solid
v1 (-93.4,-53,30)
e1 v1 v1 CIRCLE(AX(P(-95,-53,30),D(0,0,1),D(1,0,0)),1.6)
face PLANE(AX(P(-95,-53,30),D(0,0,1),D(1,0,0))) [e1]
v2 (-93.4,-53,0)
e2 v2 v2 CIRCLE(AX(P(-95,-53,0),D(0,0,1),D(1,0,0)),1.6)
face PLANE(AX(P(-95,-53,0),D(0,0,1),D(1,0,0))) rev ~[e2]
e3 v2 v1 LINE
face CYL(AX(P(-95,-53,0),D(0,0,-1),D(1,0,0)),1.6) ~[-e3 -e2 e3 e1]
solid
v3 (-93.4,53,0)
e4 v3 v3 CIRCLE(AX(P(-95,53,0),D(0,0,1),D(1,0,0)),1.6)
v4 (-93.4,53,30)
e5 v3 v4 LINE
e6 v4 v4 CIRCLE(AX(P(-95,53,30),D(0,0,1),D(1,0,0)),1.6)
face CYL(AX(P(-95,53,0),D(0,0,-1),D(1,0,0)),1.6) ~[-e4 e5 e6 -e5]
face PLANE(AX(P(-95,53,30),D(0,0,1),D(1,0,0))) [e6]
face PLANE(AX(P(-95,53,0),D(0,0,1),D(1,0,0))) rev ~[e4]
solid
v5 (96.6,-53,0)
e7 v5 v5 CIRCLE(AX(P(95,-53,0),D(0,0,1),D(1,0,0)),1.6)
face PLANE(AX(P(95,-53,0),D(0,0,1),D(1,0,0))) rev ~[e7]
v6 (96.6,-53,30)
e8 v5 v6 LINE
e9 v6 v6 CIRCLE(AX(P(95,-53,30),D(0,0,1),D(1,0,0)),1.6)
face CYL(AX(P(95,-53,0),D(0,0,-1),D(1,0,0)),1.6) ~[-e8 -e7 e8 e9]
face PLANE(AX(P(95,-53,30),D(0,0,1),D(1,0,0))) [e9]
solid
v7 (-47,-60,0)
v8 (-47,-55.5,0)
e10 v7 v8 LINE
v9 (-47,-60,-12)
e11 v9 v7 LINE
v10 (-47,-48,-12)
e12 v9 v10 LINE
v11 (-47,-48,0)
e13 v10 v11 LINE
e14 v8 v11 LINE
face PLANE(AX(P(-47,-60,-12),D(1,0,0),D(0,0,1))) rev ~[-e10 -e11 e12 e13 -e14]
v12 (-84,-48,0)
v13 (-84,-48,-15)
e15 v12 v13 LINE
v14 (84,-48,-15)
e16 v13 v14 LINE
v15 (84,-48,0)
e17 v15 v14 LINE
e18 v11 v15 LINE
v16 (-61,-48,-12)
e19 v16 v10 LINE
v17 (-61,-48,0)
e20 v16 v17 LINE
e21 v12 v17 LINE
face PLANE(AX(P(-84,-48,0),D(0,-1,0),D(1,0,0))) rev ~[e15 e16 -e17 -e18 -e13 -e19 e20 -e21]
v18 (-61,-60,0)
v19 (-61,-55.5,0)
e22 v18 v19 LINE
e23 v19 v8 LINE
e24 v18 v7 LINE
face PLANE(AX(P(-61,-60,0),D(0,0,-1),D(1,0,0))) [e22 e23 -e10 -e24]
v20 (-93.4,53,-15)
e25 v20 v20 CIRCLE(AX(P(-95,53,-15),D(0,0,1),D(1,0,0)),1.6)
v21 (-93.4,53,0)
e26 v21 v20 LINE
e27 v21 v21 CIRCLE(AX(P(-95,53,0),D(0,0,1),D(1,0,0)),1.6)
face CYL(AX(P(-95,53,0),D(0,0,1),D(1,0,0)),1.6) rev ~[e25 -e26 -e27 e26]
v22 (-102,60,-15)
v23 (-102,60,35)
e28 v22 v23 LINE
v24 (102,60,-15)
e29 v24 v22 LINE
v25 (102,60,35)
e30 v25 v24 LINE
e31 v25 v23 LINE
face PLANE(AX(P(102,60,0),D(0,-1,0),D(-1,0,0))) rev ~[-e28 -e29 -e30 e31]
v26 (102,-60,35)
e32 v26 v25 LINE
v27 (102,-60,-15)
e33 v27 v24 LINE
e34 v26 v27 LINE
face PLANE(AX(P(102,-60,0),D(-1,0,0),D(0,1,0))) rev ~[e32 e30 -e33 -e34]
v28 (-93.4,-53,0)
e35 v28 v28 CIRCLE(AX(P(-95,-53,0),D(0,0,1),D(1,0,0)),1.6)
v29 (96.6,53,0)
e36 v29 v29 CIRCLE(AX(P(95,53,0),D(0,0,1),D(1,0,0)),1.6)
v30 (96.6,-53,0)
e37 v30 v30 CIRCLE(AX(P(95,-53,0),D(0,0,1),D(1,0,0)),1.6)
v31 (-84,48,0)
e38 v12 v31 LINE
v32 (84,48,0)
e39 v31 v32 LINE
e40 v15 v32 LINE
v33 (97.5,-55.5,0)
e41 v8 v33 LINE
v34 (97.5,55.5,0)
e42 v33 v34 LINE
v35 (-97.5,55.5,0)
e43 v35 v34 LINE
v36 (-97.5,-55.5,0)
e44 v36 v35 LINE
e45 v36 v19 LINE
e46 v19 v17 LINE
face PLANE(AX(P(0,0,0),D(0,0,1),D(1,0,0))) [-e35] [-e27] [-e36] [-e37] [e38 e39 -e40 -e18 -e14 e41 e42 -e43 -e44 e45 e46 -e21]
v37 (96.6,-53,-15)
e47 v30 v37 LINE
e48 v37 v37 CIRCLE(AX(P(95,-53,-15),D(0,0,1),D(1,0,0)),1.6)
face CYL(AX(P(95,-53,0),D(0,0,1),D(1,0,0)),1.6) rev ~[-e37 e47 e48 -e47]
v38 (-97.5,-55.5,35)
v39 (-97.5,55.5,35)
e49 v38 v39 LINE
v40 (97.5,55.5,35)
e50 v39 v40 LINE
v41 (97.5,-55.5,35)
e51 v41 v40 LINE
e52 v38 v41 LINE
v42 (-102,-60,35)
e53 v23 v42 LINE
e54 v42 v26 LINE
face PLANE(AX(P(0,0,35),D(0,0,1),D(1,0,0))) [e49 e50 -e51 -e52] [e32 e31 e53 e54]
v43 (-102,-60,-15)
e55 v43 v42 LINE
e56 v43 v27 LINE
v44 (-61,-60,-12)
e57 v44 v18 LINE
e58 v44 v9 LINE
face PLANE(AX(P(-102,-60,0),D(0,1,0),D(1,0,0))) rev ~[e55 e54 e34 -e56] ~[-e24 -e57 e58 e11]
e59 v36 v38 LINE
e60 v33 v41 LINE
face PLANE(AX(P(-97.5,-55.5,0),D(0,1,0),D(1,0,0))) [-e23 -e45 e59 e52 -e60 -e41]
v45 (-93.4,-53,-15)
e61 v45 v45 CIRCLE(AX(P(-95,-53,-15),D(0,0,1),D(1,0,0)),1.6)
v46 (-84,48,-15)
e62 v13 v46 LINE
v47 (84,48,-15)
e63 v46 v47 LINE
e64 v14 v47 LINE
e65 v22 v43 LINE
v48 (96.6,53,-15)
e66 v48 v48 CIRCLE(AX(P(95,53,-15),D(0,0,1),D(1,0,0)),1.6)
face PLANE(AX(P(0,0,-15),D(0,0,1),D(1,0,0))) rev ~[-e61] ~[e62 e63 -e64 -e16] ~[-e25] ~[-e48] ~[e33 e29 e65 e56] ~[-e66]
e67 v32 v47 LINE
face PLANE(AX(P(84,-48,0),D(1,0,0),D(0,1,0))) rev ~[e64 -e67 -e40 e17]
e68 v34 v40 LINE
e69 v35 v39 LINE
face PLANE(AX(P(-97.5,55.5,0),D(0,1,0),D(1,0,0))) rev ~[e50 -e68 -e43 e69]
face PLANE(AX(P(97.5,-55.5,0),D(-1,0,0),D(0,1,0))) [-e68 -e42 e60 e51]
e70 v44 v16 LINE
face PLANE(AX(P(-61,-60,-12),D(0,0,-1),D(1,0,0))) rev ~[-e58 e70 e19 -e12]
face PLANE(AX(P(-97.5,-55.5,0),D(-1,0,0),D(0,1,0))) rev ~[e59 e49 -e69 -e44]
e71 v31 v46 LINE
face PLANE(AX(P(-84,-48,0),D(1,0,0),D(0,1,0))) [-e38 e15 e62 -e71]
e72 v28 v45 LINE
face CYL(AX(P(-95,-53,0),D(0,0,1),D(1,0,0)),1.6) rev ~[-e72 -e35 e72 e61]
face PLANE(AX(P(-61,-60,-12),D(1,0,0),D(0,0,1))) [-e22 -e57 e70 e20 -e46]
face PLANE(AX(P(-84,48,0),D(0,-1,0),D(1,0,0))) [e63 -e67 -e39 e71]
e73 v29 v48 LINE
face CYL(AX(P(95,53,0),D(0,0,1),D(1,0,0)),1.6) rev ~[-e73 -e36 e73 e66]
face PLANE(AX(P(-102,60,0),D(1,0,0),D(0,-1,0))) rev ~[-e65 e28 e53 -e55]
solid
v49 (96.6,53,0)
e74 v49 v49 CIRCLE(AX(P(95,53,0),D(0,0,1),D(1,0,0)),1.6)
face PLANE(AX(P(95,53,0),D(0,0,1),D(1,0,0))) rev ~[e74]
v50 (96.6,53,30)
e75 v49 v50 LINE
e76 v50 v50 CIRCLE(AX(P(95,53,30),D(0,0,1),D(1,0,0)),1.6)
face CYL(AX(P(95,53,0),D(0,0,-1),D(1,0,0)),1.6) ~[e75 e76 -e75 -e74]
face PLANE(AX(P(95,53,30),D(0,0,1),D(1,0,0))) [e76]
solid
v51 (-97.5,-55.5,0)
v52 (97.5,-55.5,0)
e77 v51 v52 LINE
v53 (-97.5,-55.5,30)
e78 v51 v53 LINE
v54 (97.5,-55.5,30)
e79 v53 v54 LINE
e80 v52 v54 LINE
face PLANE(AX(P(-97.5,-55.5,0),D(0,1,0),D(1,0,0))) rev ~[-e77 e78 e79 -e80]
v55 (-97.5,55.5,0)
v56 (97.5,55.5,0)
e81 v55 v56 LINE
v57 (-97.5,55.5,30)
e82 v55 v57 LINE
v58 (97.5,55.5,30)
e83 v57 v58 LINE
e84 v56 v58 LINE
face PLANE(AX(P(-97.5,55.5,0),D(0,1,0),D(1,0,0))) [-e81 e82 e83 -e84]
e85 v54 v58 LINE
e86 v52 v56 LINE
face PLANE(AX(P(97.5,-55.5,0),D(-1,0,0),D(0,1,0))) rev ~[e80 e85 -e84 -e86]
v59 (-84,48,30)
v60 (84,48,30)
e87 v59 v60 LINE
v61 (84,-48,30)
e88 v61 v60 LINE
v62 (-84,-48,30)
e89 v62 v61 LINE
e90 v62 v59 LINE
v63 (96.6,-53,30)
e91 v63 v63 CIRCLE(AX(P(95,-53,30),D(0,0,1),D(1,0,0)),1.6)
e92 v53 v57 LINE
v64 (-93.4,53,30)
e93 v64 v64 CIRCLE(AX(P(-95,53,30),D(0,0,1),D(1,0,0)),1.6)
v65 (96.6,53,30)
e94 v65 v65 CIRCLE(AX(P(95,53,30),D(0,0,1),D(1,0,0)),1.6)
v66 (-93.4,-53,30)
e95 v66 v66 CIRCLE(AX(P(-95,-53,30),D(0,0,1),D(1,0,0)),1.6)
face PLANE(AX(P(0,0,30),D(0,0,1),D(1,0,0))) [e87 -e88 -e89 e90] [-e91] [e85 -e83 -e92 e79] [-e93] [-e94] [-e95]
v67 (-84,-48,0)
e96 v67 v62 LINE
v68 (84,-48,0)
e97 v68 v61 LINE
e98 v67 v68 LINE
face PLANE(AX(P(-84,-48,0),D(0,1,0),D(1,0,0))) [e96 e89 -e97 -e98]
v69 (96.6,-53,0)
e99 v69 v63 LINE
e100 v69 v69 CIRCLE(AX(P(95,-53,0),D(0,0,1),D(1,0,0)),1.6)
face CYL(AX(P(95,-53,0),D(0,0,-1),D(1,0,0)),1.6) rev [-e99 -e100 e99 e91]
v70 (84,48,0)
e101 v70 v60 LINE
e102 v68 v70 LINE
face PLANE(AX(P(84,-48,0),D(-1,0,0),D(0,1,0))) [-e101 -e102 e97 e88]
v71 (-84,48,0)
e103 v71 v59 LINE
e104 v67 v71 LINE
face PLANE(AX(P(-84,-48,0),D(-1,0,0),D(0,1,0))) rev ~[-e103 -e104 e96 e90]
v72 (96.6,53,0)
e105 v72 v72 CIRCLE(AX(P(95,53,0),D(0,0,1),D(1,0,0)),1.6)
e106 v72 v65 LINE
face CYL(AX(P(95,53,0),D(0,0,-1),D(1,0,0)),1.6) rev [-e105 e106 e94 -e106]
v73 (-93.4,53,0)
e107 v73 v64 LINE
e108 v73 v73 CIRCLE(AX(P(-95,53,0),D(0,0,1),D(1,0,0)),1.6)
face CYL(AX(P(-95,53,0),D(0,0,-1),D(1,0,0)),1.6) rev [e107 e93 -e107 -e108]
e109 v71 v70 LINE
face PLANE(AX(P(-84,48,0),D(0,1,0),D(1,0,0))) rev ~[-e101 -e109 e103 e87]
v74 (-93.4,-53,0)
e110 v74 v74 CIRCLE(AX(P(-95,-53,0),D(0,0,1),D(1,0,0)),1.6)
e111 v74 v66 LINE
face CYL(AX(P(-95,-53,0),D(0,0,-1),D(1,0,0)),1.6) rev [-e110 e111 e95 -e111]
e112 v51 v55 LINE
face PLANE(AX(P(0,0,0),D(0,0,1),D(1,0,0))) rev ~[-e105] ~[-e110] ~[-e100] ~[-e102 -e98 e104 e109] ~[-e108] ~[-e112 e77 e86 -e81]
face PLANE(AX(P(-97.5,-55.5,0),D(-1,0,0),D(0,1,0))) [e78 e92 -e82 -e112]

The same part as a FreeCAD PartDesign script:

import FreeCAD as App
import Part
import Sketcher

V = App.Vector

doc = App.newDocument("Part")
body = doc.addObject("PartDesign::Body", "Body")

sketch1 = doc.addObject("Sketcher::SketchObject", "Sketch")
body.addObject(sketch1)
sketch1.AttachmentSupport = (doc.XY_Plane, [""])
sketch1.MapMode = "FlatFace"
sketch1.addGeometry([
    Part.LineSegment(V(102, 60, 0), V(-102, 60, 0)),
    Part.LineSegment(V(-102, 60, 0), V(-102, -60, 0)),
    Part.LineSegment(V(-102, -60, 0), V(102, -60, 0)),
    Part.LineSegment(V(102, -60, 0), V(102, 60, 0)),
    Part.LineSegment(V(97.5, -55.5, 0), V(-97.5, -55.5, 0)),
    Part.LineSegment(V(-97.5, -55.5, 0), V(-97.5, 55.5, 0)),
    Part.LineSegment(V(-97.5, 55.5, 0), V(97.5, 55.5, 0)),
    Part.LineSegment(V(97.5, 55.5, 0), V(97.5, -55.5, 0)),
], False)
sketch1.addConstraint([
    Sketcher.Constraint("Coincident", 0, 2, 1, 1),
    Sketcher.Constraint("Coincident", 1, 2, 2, 1),
    Sketcher.Constraint("Coincident", 2, 2, 3, 1),
    Sketcher.Constraint("Coincident", 3, 2, 0, 1),
    Sketcher.Constraint("Coincident", 4, 2, 5, 1),
    Sketcher.Constraint("Coincident", 5, 2, 6, 1),
    Sketcher.Constraint("Coincident", 6, 2, 7, 1),
    Sketcher.Constraint("Coincident", 7, 2, 4, 1),
    Sketcher.Constraint("Horizontal", 0),
    Sketcher.Constraint("Vertical", 1),
    Sketcher.Constraint("Horizontal", 2),
    Sketcher.Constraint("Vertical", 3),
    Sketcher.Constraint("Horizontal", 4),
    Sketcher.Constraint("Vertical", 5),
    Sketcher.Constraint("Horizontal", 6),
    Sketcher.Constraint("Vertical", 7),
    Sketcher.Constraint("Symmetric", 0, 2, 2, 2, -1, 1),
    Sketcher.Constraint("Symmetric", 4, 2, 6, 2, -1, 1),
    Sketcher.Constraint("DistanceX", 0, 2, 0, 1, 204.0),
    Sketcher.Constraint("DistanceX", 4, 2, 4, 1, 195.0),
    Sketcher.Constraint("DistanceY", 1, 2, 1, 1, 120.0),
    Sketcher.Constraint("DistanceY", 5, 1, 5, 2, 111.0),
])
pad1 = doc.addObject("PartDesign::Pad", "Pad")
body.addObject(pad1)
pad1.Profile = sketch1
pad1.Length = 15
pad1.Reversed = True

sketch2 = doc.addObject("Sketcher::SketchObject", "Sketch001")
body.addObject(sketch2)
sketch2.AttachmentSupport = (doc.XY_Plane, [""])
sketch2.MapMode = "FlatFace"
sketch2.addGeometry([
    Part.LineSegment(V(-97.5, 55.5, 0), V(-97.5, -55.5, 0)),
    Part.LineSegment(V(-97.5, -55.5, 0), V(97.5, -55.5, 0)),
    Part.LineSegment(V(97.5, -55.5, 0), V(97.5, 55.5, 0)),
    Part.LineSegment(V(97.5, 55.5, 0), V(-97.5, 55.5, 0)),
    Part.Circle(V(-95, -53, 0), V(0, 0, 1), 1.6),
    Part.LineSegment(V(84, -48, 0), V(-84, -48, 0)),
    Part.LineSegment(V(-84, -48, 0), V(-84, 48, 0)),
    Part.LineSegment(V(-84, 48, 0), V(84, 48, 0)),
    Part.LineSegment(V(84, 48, 0), V(84, -48, 0)),
    Part.Circle(V(95, -53, 0), V(0, 0, 1), 1.6),
    Part.Circle(V(-95, 53, 0), V(0, 0, 1), 1.6),
    Part.Circle(V(95, 53, 0), V(0, 0, 1), 1.6),
], False)
sketch2.addConstraint([
    Sketcher.Constraint("Coincident", 0, 2, 1, 1),
    Sketcher.Constraint("Coincident", 1, 2, 2, 1),
    Sketcher.Constraint("Coincident", 2, 2, 3, 1),
    Sketcher.Constraint("Coincident", 3, 2, 0, 1),
    Sketcher.Constraint("Coincident", 5, 2, 6, 1),
    Sketcher.Constraint("Coincident", 6, 2, 7, 1),
    Sketcher.Constraint("Coincident", 7, 2, 8, 1),
    Sketcher.Constraint("Coincident", 8, 2, 5, 1),
    Sketcher.Constraint("Vertical", 0),
    Sketcher.Constraint("Horizontal", 1),
    Sketcher.Constraint("Vertical", 2),
    Sketcher.Constraint("Horizontal", 3),
    Sketcher.Constraint("Horizontal", 5),
    Sketcher.Constraint("Vertical", 6),
    Sketcher.Constraint("Horizontal", 7),
    Sketcher.Constraint("Vertical", 8),
    Sketcher.Constraint("Equal", 4, 9),
    Sketcher.Constraint("Equal", 9, 10),
    Sketcher.Constraint("Equal", 10, 11),
    Sketcher.Constraint("Symmetric", 9, 3, 10, 3, -1, 1),
    Sketcher.Constraint("Symmetric", 4, 3, 11, 3, -1, 1),
    Sketcher.Constraint("Symmetric", 0, 2, 2, 2, -1, 1),
    Sketcher.Constraint("Symmetric", 5, 2, 7, 2, -1, 1),
    Sketcher.Constraint("Symmetric", 4, 3, 9, 3, -2),
    Sketcher.Constraint("Diameter", 4, 3.2),
    Sketcher.Constraint("DistanceX", 1, 1, 1, 2, 195.0),
    Sketcher.Constraint("DistanceX", 5, 2, 5, 1, 168.0),
    Sketcher.Constraint("DistanceY", 0, 2, 0, 1, 111.0),
    Sketcher.Constraint("DistanceY", 6, 1, 6, 2, 96.0),
    Sketcher.Constraint("DistanceX", 4, 3, -1, 1, 95.0),
    Sketcher.Constraint("DistanceY", 4, 3, -1, 1, 53.0),
])
pad2 = doc.addObject("PartDesign::Pad", "Pad001")
body.addObject(pad2)
pad2.Profile = sketch2
pad2.Length = 15
pad2.Reversed = True

sketch3 = doc.addObject("Sketcher::SketchObject", "Sketch002")
body.addObject(sketch3)
sketch3.AttachmentSupport = (doc.XY_Plane, [""])
sketch3.MapMode = "FlatFace"
sketch3.addGeometry([
    Part.LineSegment(V(102, 60, 0), V(-102, 60, 0)),
    Part.LineSegment(V(-102, 60, 0), V(-102, -60, 0)),
    Part.LineSegment(V(-102, -60, 0), V(102, -60, 0)),
    Part.LineSegment(V(102, -60, 0), V(102, 60, 0)),
    Part.LineSegment(V(97.5, -55.5, 0), V(-97.5, -55.5, 0)),
    Part.LineSegment(V(-97.5, -55.5, 0), V(-97.5, 55.5, 0)),
    Part.LineSegment(V(-97.5, 55.5, 0), V(97.5, 55.5, 0)),
    Part.LineSegment(V(97.5, 55.5, 0), V(97.5, -55.5, 0)),
], False)
sketch3.addConstraint([
    Sketcher.Constraint("Coincident", 0, 2, 1, 1),
    Sketcher.Constraint("Coincident", 1, 2, 2, 1),
    Sketcher.Constraint("Coincident", 2, 2, 3, 1),
    Sketcher.Constraint("Coincident", 3, 2, 0, 1),
    Sketcher.Constraint("Coincident", 4, 2, 5, 1),
    Sketcher.Constraint("Coincident", 5, 2, 6, 1),
    Sketcher.Constraint("Coincident", 6, 2, 7, 1),
    Sketcher.Constraint("Coincident", 7, 2, 4, 1),
    Sketcher.Constraint("Horizontal", 0),
    Sketcher.Constraint("Vertical", 1),
    Sketcher.Constraint("Horizontal", 2),
    Sketcher.Constraint("Vertical", 3),
    Sketcher.Constraint("Horizontal", 4),
    Sketcher.Constraint("Vertical", 5),
    Sketcher.Constraint("Horizontal", 6),
    Sketcher.Constraint("Vertical", 7),
    Sketcher.Constraint("Symmetric", 0, 2, 2, 2, -1, 1),
    Sketcher.Constraint("Symmetric", 4, 2, 6, 2, -1, 1),
    Sketcher.Constraint("DistanceX", 0, 2, 0, 1, 204.0),
    Sketcher.Constraint("DistanceX", 4, 2, 4, 1, 195.0),
    Sketcher.Constraint("DistanceY", 1, 2, 1, 1, 120.0),
    Sketcher.Constraint("DistanceY", 5, 1, 5, 2, 111.0),
])
pad3 = doc.addObject("PartDesign::Pad", "Pad002")
body.addObject(pad3)
pad3.Profile = sketch3
pad3.Length = 35

sketch4 = doc.addObject("Sketcher::SketchObject", "Sketch003")
body.addObject(sketch4)
sketch4.AttachmentSupport = (doc.XZ_Plane, [""])
sketch4.MapMode = "FlatFace"
sketch4.AttachmentOffset = App.Placement(V(0, 0, 60), App.Rotation())
sketch4.addGeometry([
    Part.LineSegment(V(-61, 0, 0), V(-61, -12, 0)),
    Part.LineSegment(V(-61, -12, 0), V(-47, -12, 0)),
    Part.LineSegment(V(-47, -12, 0), V(-47, 0, 0)),
    Part.LineSegment(V(-47, 0, 0), V(-61, 0, 0)),
], False)
sketch4.addConstraint([
    Sketcher.Constraint("Coincident", 0, 2, 1, 1),
    Sketcher.Constraint("Coincident", 1, 2, 2, 1),
    Sketcher.Constraint("Coincident", 2, 2, 3, 1),
    Sketcher.Constraint("Coincident", 3, 2, 0, 1),
    Sketcher.Constraint("Vertical", 0),
    Sketcher.Constraint("Horizontal", 1),
    Sketcher.Constraint("Vertical", 2),
    Sketcher.Constraint("Horizontal", 3),
    Sketcher.Constraint("PointOnObject", 2, 2, -1),
    Sketcher.Constraint("DistanceX", 1, 1, 1, 2, 14.0),
    Sketcher.Constraint("DistanceY", 0, 2, 0, 1, 12.0),
    Sketcher.Constraint("DistanceX", 0, 2, -1, 1, 61.0),
])
pocket1 = doc.addObject("PartDesign::Pocket", "Pocket")
body.addObject(pocket1)
pocket1.Profile = sketch4
pocket1.Length = 25
body2 = doc.addObject("PartDesign::Body", "Body001")

sketch5 = doc.addObject("Sketcher::SketchObject", "Sketch004")
body2.addObject(sketch5)
sketch5.AttachmentSupport = (doc.getObject("XY_Plane001"), [""])
sketch5.MapMode = "FlatFace"
sketch5.addGeometry(Part.Circle(V(95, 53, 0), V(0, 0, 1), 1.6), False)
sketch5.addConstraint([
    Sketcher.Constraint("Diameter", 0, 3.2),
    Sketcher.Constraint("DistanceX", -1, 1, 0, 3, 95.0),
    Sketcher.Constraint("DistanceY", -1, 1, 0, 3, 53.0),
])
pad4 = doc.addObject("PartDesign::Pad", "Pad003")
body2.addObject(pad4)
pad4.Profile = sketch5
pad4.Length = 30
body3 = doc.addObject("PartDesign::Body", "Body002")

sketch6 = doc.addObject("Sketcher::SketchObject", "Sketch005")
body3.addObject(sketch6)
sketch6.AttachmentSupport = (doc.getObject("XY_Plane002"), [""])
sketch6.MapMode = "FlatFace"
sketch6.addGeometry(Part.Circle(V(-95, 53, 0), V(0, 0, 1), 1.6), False)
sketch6.addConstraint([
    Sketcher.Constraint("Diameter", 0, 3.2),
    Sketcher.Constraint("DistanceX", 0, 3, -1, 1, 95.0),
    Sketcher.Constraint("DistanceY", -1, 1, 0, 3, 53.0),
])
pad5 = doc.addObject("PartDesign::Pad", "Pad004")
body3.addObject(pad5)
pad5.Profile = sketch6
pad5.Length = 30
body4 = doc.addObject("PartDesign::Body", "Body003")

sketch7 = doc.addObject("Sketcher::SketchObject", "Sketch006")
body4.addObject(sketch7)
sketch7.AttachmentSupport = (doc.getObject("XY_Plane003"), [""])
sketch7.MapMode = "FlatFace"
sketch7.addGeometry(Part.Circle(V(95, -53, 0), V(0, 0, 1), 1.6), False)
sketch7.addConstraint([
    Sketcher.Constraint("Diameter", 0, 3.2),
    Sketcher.Constraint("DistanceX", -1, 1, 0, 3, 95.0),
    Sketcher.Constraint("DistanceY", 0, 3, -1, 1, 53.0),
])
pad6 = doc.addObject("PartDesign::Pad", "Pad005")
body4.addObject(pad6)
pad6.Profile = sketch7
pad6.Length = 30
body5 = doc.addObject("PartDesign::Body", "Body004")

sketch8 = doc.addObject("Sketcher::SketchObject", "Sketch007")
body5.addObject(sketch8)
sketch8.AttachmentSupport = (doc.getObject("XY_Plane004"), [""])
sketch8.MapMode = "FlatFace"
sketch8.addGeometry(Part.Circle(V(-95, -53, 0), V(0, 0, 1), 1.6), False)
sketch8.addConstraint([
    Sketcher.Constraint("Diameter", 0, 3.2),
    Sketcher.Constraint("DistanceX", 0, 3, -1, 1, 95.0),
    Sketcher.Constraint("DistanceY", 0, 3, -1, 1, 53.0),
])
pad7 = doc.addObject("PartDesign::Pad", "Pad006")
body5.addObject(pad7)
pad7.Profile = sketch8
pad7.Length = 30
body6 = doc.addObject("PartDesign::Body", "Body005")

sketch9 = doc.addObject("Sketcher::SketchObject", "Sketch008")
body6.addObject(sketch9)
sketch9.AttachmentSupport = (doc.getObject("XY_Plane005"), [""])
sketch9.MapMode = "FlatFace"
sketch9.addGeometry([
    Part.LineSegment(V(-97.5, 55.5, 0), V(-97.5, -55.5, 0)),
    Part.LineSegment(V(-97.5, -55.5, 0), V(97.5, -55.5, 0)),
    Part.LineSegment(V(97.5, -55.5, 0), V(97.5, 55.5, 0)),
    Part.LineSegment(V(97.5, 55.5, 0), V(-97.5, 55.5, 0)),
    Part.Circle(V(-95, -53, 0), V(0, 0, 1), 1.6),
    Part.LineSegment(V(84, -48, 0), V(-84, -48, 0)),
    Part.LineSegment(V(-84, -48, 0), V(-84, 48, 0)),
    Part.LineSegment(V(-84, 48, 0), V(84, 48, 0)),
    Part.LineSegment(V(84, 48, 0), V(84, -48, 0)),
    Part.Circle(V(95, -53, 0), V(0, 0, 1), 1.6),
    Part.Circle(V(-95, 53, 0), V(0, 0, 1), 1.6),
    Part.Circle(V(95, 53, 0), V(0, 0, 1), 1.6),
], False)
sketch9.addConstraint([
    Sketcher.Constraint("Coincident", 0, 2, 1, 1),
    Sketcher.Constraint("Coincident", 1, 2, 2, 1),
    Sketcher.Constraint("Coincident", 2, 2, 3, 1),
    Sketcher.Constraint("Coincident", 3, 2, 0, 1),
    Sketcher.Constraint("Coincident", 5, 2, 6, 1),
    Sketcher.Constraint("Coincident", 6, 2, 7, 1),
    Sketcher.Constraint("Coincident", 7, 2, 8, 1),
    Sketcher.Constraint("Coincident", 8, 2, 5, 1),
    Sketcher.Constraint("Vertical", 0),
    Sketcher.Constraint("Horizontal", 1),
    Sketcher.Constraint("Vertical", 2),
    Sketcher.Constraint("Horizontal", 3),
    Sketcher.Constraint("Horizontal", 5),
    Sketcher.Constraint("Vertical", 6),
    Sketcher.Constraint("Horizontal", 7),
    Sketcher.Constraint("Vertical", 8),
    Sketcher.Constraint("Equal", 4, 9),
    Sketcher.Constraint("Equal", 9, 10),
    Sketcher.Constraint("Equal", 10, 11),
    Sketcher.Constraint("Symmetric", 9, 3, 10, 3, -1, 1),
    Sketcher.Constraint("Symmetric", 4, 3, 11, 3, -1, 1),
    Sketcher.Constraint("Symmetric", 0, 2, 2, 2, -1, 1),
    Sketcher.Constraint("Symmetric", 5, 2, 7, 2, -1, 1),
    Sketcher.Constraint("Symmetric", 4, 3, 9, 3, -2),
    Sketcher.Constraint("Diameter", 4, 3.2),
    Sketcher.Constraint("DistanceX", 1, 1, 1, 2, 195.0),
    Sketcher.Constraint("DistanceX", 5, 2, 5, 1, 168.0),
    Sketcher.Constraint("DistanceY", 0, 2, 0, 1, 111.0),
    Sketcher.Constraint("DistanceY", 6, 1, 6, 2, 96.0),
    Sketcher.Constraint("DistanceX", 4, 3, -1, 1, 95.0),
    Sketcher.Constraint("DistanceY", 4, 3, -1, 1, 53.0),
])
pad8 = doc.addObject("PartDesign::Pad", "Pad007")
body6.addObject(pad8)
pad8.Profile = sketch9
pad8.Length = 30

doc.recompute()
